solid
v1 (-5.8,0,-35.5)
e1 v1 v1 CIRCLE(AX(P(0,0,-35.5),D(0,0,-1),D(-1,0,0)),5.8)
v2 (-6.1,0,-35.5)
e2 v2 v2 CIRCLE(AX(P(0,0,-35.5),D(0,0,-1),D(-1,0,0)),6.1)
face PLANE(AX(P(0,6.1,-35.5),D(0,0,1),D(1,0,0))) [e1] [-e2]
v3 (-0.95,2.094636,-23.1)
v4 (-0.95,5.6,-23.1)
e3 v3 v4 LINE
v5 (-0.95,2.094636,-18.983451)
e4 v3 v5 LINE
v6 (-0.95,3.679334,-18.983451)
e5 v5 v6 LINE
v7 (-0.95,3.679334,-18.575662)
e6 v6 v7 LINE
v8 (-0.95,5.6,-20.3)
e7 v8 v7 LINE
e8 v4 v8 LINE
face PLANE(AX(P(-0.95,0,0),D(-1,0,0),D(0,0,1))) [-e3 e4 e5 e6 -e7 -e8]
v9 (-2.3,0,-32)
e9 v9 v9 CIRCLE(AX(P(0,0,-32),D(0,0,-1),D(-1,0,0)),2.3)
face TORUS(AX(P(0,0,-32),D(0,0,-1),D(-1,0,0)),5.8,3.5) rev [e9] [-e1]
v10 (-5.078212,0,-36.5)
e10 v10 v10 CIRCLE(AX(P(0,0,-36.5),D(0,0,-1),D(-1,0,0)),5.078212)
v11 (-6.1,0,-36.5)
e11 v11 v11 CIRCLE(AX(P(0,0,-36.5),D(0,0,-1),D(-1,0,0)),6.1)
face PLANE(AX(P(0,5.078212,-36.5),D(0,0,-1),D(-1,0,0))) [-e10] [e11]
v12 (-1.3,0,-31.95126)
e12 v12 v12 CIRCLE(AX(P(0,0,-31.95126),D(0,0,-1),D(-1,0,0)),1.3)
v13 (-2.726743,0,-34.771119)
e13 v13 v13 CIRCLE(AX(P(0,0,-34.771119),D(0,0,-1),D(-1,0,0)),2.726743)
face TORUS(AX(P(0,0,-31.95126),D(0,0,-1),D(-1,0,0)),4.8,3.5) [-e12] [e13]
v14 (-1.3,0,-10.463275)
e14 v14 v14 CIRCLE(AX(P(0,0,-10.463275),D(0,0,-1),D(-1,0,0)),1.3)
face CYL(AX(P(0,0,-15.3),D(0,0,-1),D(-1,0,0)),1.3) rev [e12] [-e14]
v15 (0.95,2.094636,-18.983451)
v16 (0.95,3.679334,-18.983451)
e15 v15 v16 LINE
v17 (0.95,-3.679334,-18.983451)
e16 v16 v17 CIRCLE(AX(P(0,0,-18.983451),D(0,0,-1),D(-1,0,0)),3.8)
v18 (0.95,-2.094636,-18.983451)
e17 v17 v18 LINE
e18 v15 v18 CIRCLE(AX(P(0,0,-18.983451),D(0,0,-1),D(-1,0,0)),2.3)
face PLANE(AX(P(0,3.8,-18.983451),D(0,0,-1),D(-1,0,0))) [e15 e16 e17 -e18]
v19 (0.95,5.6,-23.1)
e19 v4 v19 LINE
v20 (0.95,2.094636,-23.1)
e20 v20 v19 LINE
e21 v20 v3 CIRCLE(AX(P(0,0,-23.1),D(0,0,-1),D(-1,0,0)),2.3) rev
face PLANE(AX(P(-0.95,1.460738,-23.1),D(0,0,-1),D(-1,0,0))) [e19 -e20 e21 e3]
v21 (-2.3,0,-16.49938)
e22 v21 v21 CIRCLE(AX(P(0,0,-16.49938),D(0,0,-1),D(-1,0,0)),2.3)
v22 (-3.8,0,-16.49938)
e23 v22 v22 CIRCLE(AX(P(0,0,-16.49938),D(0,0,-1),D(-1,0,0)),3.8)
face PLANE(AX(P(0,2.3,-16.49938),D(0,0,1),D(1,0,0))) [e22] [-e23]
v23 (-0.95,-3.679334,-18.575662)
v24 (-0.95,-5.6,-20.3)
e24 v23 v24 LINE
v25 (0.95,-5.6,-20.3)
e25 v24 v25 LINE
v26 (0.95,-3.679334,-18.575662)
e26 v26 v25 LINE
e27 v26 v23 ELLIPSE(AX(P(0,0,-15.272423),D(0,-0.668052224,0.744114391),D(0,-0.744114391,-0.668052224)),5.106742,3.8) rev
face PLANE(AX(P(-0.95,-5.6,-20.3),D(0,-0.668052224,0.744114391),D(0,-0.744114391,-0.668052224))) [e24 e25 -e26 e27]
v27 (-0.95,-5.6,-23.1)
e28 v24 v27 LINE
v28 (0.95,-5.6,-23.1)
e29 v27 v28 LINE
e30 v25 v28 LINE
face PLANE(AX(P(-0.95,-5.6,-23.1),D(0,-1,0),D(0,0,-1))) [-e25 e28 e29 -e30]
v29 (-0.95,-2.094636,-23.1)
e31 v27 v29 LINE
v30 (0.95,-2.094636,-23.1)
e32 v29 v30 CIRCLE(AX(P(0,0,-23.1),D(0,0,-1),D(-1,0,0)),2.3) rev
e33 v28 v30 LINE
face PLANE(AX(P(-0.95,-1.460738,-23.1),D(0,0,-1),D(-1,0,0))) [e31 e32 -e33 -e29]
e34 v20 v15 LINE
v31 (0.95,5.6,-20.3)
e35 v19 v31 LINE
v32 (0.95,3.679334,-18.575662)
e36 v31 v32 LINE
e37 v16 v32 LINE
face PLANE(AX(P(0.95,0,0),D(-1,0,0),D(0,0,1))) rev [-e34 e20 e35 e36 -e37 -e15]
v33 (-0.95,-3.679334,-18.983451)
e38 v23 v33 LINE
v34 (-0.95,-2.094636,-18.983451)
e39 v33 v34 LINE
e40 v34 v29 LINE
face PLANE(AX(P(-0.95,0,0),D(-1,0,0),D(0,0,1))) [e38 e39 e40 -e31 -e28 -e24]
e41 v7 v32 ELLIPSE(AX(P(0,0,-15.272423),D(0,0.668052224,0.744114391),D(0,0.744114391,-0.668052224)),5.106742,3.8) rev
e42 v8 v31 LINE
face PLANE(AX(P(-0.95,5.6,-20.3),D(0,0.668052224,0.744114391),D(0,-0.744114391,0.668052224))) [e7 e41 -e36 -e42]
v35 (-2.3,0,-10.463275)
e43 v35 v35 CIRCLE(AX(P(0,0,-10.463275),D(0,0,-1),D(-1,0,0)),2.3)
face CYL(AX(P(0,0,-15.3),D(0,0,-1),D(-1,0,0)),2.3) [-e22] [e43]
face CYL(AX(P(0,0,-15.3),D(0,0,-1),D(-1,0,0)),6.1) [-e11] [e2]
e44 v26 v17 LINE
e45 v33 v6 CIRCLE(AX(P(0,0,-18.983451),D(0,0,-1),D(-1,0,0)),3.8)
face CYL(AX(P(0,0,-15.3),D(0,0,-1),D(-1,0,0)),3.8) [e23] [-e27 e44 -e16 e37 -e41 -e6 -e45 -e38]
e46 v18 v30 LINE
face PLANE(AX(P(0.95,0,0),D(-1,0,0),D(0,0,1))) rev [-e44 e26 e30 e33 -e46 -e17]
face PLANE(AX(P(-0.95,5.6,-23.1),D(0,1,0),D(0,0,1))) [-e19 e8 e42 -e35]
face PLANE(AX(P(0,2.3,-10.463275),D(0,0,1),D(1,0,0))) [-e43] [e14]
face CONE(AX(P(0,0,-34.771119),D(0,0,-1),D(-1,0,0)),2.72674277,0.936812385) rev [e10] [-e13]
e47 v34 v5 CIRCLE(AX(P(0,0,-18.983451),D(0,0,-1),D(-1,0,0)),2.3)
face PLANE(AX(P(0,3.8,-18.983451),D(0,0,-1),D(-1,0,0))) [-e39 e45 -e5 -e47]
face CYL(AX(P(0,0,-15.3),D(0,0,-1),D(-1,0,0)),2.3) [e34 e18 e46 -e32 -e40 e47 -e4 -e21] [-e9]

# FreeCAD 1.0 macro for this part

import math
import FreeCAD as App
import Part
import Sketcher
from FreeCAD import Vector


def add_polygon(sketch, points):
    """Adds a closed chain of lines whose ends are joined by coincident constraints."""
    first, n = sketch.GeometryCount, len(points)
    for a, b in zip(points, points[1:] + points[:1]):
        sketch.addGeometry(Part.LineSegment(App.Vector(*a, 0), App.Vector(*b, 0)), False)
    for i in range(n):
        sketch.addConstraint(Sketcher.Constraint("Coincident", first + i, 2, first + (i + 1) % n, 1))

doc = App.newDocument("Part")
params = doc.addObject("Spreadsheet::Sheet", "Params")
for row, (alias, value) in enumerate([
    ("sketch1_radius", "3.5 mm"),
    ("sketch1_width", "1 mm"),
    ("sketch1_width2", "0.3 mm"),
    ("sketch1_width3", "1.5 mm"),
    ("revolution_angle", "360 deg"),
    ("sketch2_height", "2.8 mm"),
    ("pad1_length", "0.95 mm"),
    ("pad1_length2", "0.95 mm"),
], start=1):
    params.set(f"A{row}", alias)
    params.set(f"B{row}", "=" + value)
    params.setAlias(f"B{row}", alias)

body = doc.addObject("PartDesign::Body", "Body")

# Sketch on YZ plane
sketch1 = body.newObject("Sketcher::SketchObject", "Sketch")
sketch1.AttachmentSupport = (doc.getObject("YZ_Plane"), [""])
sketch1.MapMode = "FlatFace"
sketch1.addGeometry([
    Part.LineSegment(Vector(2.3, -16.5, 0), Vector(2.3, -10.46, 0)),  # 0
    Part.LineSegment(Vector(2.3, -10.46, 0), Vector(1.3, -10.46, 0)),  # 1
    Part.LineSegment(Vector(1.3, -10.46, 0), Vector(1.3, -31.95, 0)),  # 2
    Part.ArcOfCircle(Part.Circle(Vector(4.8, -31.95, 0), Vector(0, 0, 1), 3.5), math.radians(180), math.radians(234)),  # 3
    Part.LineSegment(Vector(2.73, -34.77, 0), Vector(5.08, -36.5, 0)),  # 4
    Part.LineSegment(Vector(5.08, -36.5, 0), Vector(6.1, -36.5, 0)),  # 5
    Part.LineSegment(Vector(6.1, -36.5, 0), Vector(6.1, -35.5, 0)),  # 6
    Part.LineSegment(Vector(6.1, -35.5, 0), Vector(5.8, -35.5, 0)),  # 7
    Part.ArcOfCircle(Part.Circle(Vector(5.8, -32, 0), Vector(0, 0, 1), 3.5), math.radians(-180), math.radians(-90)),  # 8
    Part.LineSegment(Vector(2.3, -32, 0), Vector(2.3, -18.98, 0)),  # 9
    Part.LineSegment(Vector(2.3, -18.98, 0), Vector(3.8, -18.98, 0)),  # 10
    Part.LineSegment(Vector(3.8, -18.98, 0), Vector(3.8, -16.5, 0)),  # 11
    Part.LineSegment(Vector(3.8, -16.5, 0), Vector(2.3, -16.5, 0)),  # 12
], False)
sketch1.addConstraint([
    Sketcher.Constraint("Coincident", 0, 2, 1, 1),
    Sketcher.Constraint("Coincident", 1, 2, 2, 1),
    Sketcher.Constraint("Tangent", 2, 2, 3, 1),
    Sketcher.Constraint("Tangent", 3, 2, 4, 1),
    Sketcher.Constraint("Coincident", 4, 2, 5, 1),
    Sketcher.Constraint("Coincident", 5, 2, 6, 1),
    Sketcher.Constraint("Coincident", 6, 2, 7, 1),
    Sketcher.Constraint("Tangent", 7, 2, 8, 2),
    Sketcher.Constraint("Tangent", 8, 1, 9, 1),
    Sketcher.Constraint("Coincident", 9, 2, 10, 1),
    Sketcher.Constraint("Coincident", 10, 2, 11, 1),
    Sketcher.Constraint("Coincident", 11, 2, 12, 1),
    Sketcher.Constraint("Coincident", 12, 2, 0, 1),
    Sketcher.Constraint("Vertical", 0),
    Sketcher.Constraint("Horizontal", 1),
    Sketcher.Constraint("Vertical", 2),
    Sketcher.Constraint("Horizontal", 5),
    Sketcher.Constraint("Vertical", 6),
    Sketcher.Constraint("Horizontal", 7),
    Sketcher.Constraint("Vertical", 9),
    Sketcher.Constraint("Horizontal", 10),
    Sketcher.Constraint("Vertical", 11),
    Sketcher.Constraint("Horizontal", 12),
    Sketcher.Constraint("Equal", 3, 8),
    Sketcher.Constraint("Vertical", 0, 2, 8, 1),
    Sketcher.Constraint("Equal", 1, 6),
    Sketcher.Constraint("Radius", 3, 3.5),
    Sketcher.Constraint("DistanceX", 1, 2, 1, 1, 1.0),
    Sketcher.Constraint("DistanceX", 7, 2, 7, 1, 0.3),
    Sketcher.Constraint("DistanceX", 10, 1, 10, 2, 1.5),
    Sketcher.Constraint("DistanceY", 8, 3, -1, 1, 32.0),
    Sketcher.Constraint("DistanceX", -1, 1, 3, 3, 4.8),
    Sketcher.Constraint("DistanceX", 5, 1, 5, 2, 1.021788),
    Sketcher.Constraint("DistanceY", 9, 1, 9, 2, 13.016549),
    Sketcher.Constraint("DistanceY", 11, 1, 11, 2, 2.484071),
    Sketcher.Constraint("DistanceY", 0, 1, 0, 2, 6.036105),
    Sketcher.Constraint("DistanceY", 2, 2, 2, 1, 21.487986),
])
sketch1.setExpression("Constraints[26]", "Params.sketch1_radius")
sketch1.setExpression("Constraints[27]", "Params.sketch1_width")
sketch1.setExpression("Constraints[28]", "Params.sketch1_width2")
sketch1.setExpression("Constraints[29]", "Params.sketch1_width3")
revolution = body.newObject("PartDesign::Revolution", "Revolution")
revolution.Profile = sketch1
revolution.ReferenceAxis = (sketch1, ["V_Axis"])
revolution.setExpression("Angle", "Params.revolution_angle")

# Sketch on YZ plane
sketch2 = body.newObject("Sketcher::SketchObject", "Sketch001")
sketch2.AttachmentSupport = (doc.getObject("YZ_Plane"), [""])
sketch2.MapMode = "FlatFace"
add_polygon(sketch2, [(1.5, -23.1), (5.6, -23.1), (5.6, -20.3), (1.5, -16.6)])  # lines 0-3
add_polygon(sketch2, [(-1.5, -23.1), (-1.5, -16.6), (-5.6, -20.3), (-5.6, -23.1)])  # lines 4-7
sketch2.addConstraint([
    Sketcher.Constraint("Horizontal", 0),
    Sketcher.Constraint("Vertical", 1),
    Sketcher.Constraint("Vertical", 3),
    Sketcher.Constraint("Vertical", 4),
    Sketcher.Constraint("Vertical", 6),
    Sketcher.Constraint("Horizontal", 7),
    Sketcher.Constraint("Symmetric", 2, 2, 4, 2, -2),
    Sketcher.Constraint("Symmetric", 1, 2, 5, 2, -2),
    Sketcher.Constraint("Horizontal", 3, 2, 6, 2),
    Sketcher.Constraint("DistanceY", 1, 1, 1, 2, 2.8),
    Sketcher.Constraint("DistanceX", -1, 1, 0, 2, 5.6),
    Sketcher.Constraint("DistanceY", 0, 2, -1, 1, 23.1),
    Sketcher.Constraint("Distance", 2, 5.56267),
    Sketcher.Constraint("DistanceX", 0, 1, 0, 2, 4.139262),
])
sketch2.setExpression("Constraints[17]", "Params.sketch2_height")
pad1 = body.newObject("PartDesign::Pad", "Pad")
pad1.Profile = sketch2
pad1.Type = "TwoLengths"
pad1.setExpression("Length", "Params.pad1_length")
pad1.setExpression("Length2", "Params.pad1_length2")

doc.recompute()
